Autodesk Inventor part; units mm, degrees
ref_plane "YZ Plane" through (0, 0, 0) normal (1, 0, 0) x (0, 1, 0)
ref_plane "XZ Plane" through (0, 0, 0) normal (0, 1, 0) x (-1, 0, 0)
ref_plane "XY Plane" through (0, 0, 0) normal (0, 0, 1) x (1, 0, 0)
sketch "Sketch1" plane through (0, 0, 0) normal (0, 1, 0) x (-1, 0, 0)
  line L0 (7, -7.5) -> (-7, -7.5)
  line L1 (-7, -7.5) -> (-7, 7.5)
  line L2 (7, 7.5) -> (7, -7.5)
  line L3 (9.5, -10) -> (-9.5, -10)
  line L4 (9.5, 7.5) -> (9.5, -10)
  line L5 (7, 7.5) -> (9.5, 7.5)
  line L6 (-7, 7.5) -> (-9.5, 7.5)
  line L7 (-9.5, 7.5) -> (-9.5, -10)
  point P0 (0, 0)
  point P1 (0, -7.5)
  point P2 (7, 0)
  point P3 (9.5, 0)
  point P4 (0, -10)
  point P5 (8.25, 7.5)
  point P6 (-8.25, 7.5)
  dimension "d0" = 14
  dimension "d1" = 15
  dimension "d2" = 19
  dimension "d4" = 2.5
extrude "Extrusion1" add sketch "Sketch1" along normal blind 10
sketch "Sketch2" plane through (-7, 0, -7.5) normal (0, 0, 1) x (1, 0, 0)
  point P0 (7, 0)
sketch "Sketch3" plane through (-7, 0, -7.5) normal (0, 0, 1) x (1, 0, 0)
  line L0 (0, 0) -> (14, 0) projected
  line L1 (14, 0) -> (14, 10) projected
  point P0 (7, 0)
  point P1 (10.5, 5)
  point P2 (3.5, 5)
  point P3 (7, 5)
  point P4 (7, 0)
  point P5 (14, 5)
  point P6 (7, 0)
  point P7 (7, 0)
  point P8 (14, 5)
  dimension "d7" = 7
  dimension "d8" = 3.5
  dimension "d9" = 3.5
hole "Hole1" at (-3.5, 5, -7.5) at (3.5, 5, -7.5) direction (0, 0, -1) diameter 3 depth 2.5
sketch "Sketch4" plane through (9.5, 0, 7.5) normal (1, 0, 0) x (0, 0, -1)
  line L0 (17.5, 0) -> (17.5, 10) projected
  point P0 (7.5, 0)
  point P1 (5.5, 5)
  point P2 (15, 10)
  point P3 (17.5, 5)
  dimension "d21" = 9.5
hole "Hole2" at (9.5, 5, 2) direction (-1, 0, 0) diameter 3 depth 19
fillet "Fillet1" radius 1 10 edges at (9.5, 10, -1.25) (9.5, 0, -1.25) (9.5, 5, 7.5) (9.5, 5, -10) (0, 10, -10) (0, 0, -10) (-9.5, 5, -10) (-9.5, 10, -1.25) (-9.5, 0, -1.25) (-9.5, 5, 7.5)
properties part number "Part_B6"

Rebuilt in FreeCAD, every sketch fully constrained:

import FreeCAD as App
import Part
import Sketcher
from FreeCAD import Vector
Q = App.Units.Quantity


def edges_at(feature, points):
    """Names of the edges that pass closest to the given points."""
    edges = feature.Shape.Edges
    near = lambda p: min(range(len(edges)), key=lambda i: edges[i].distToShape(Part.Vertex(*p))[0])
    return sorted({f"Edge{near(p) + 1}" for p in points})

doc = App.newDocument("Part")
params = doc.addObject("Spreadsheet::Sheet", "Params")
for row, (alias, value) in enumerate([
    ("sketch1_width", "14 mm"),
    ("sketch1_width2", "19 mm"),
    ("sketch1_height", "15 mm"),
    ("pad1_length", "10 mm"),
    ("sketch2_diameter", "3 mm"),
    ("hole_diameter", "3 mm"),
    ("hole_depth", "2.5 mm"),
    ("sketch3_diameter", "3 mm"),
    ("hole2_diameter", "3 mm"),
    ("hole2_depth", "19 mm"),
    ("fillet_radius", "1 mm"),
], start=1):
    params.set(f"A{row}", alias)
    params.set(f"B{row}", "=" + value)
    params.setAlias(f"B{row}", alias)

body = doc.addObject("PartDesign::Body", "Body")

# Sketch on XZ plane
sketch1 = doc.addObject("Sketcher::SketchObject", "Sketch")
body.addObject(sketch1)
sketch1.AttachmentSupport = (doc.XZ_Plane, [""])
sketch1.MapMode = "FlatFace"
sketch1.addGeometry([
    Part.LineSegment(Vector(-7, 7.5, 0), Vector(-7, -7.5, 0)),  # 0
    Part.LineSegment(Vector(-7, -7.5, 0), Vector(7, -7.5, 0)),  # 1
    Part.LineSegment(Vector(7, -7.5, 0), Vector(7, 7.5, 0)),  # 2
    Part.LineSegment(Vector(7, 7.5, 0), Vector(9.5, 7.5, 0)),  # 3
    Part.LineSegment(Vector(9.5, 7.5, 0), Vector(9.5, -10, 0)),  # 4
    Part.LineSegment(Vector(9.5, -10, 0), Vector(-9.5, -10, 0)),  # 5
    Part.LineSegment(Vector(-9.5, -10, 0), Vector(-9.5, 7.5, 0)),  # 6
    Part.LineSegment(Vector(-9.5, 7.5, 0), Vector(-7, 7.5, 0)),  # 7
], False)
sketch1.addConstraint([
    Sketcher.Constraint("Coincident", 0, 2, 1, 1),
    Sketcher.Constraint("Coincident", 1, 2, 2, 1),
    Sketcher.Constraint("Coincident", 2, 2, 3, 1),
    Sketcher.Constraint("Coincident", 3, 2, 4, 1),
    Sketcher.Constraint("Coincident", 4, 2, 5, 1),
    Sketcher.Constraint("Coincident", 5, 2, 6, 1),
    Sketcher.Constraint("Coincident", 6, 2, 7, 1),
    Sketcher.Constraint("Coincident", 7, 2, 0, 1),
    Sketcher.Constraint("Vertical", 0),
    Sketcher.Constraint("Horizontal", 1),
    Sketcher.Constraint("Vertical", 2),
    Sketcher.Constraint("Horizontal", 3),
    Sketcher.Constraint("Vertical", 4),
    Sketcher.Constraint("Horizontal", 5),
    Sketcher.Constraint("Vertical", 6),
    Sketcher.Constraint("Horizontal", 7),
    Sketcher.Constraint("Symmetric", 0, 2, 2, 2, -1, 1),
    Sketcher.Constraint("Symmetric", 3, 2, 6, 2, -2),
    Sketcher.Constraint("DistanceX", 1, 1, 1, 2, Q("14 mm")),
    Sketcher.Constraint("DistanceX", 5, 2, 5, 1, Q("19 mm")),
    Sketcher.Constraint("DistanceY", 0, 2, 0, 1, Q("15 mm")),
    Sketcher.Constraint("DistanceY", 4, 2, 1, 2, Q("2.5 mm")),
])
sketch1.setExpression("Constraints[18]", "Params.sketch1_width")
sketch1.setExpression("Constraints[19]", "Params.sketch1_width2")
sketch1.setExpression("Constraints[20]", "Params.sketch1_height")
pad1 = doc.addObject("PartDesign::Pad", "Pad")
body.addObject(pad1)
pad1.Profile = sketch1
pad1.setExpression("Length", "Params.pad1_length")
pad1.Reversed = True

# Sketch on XY plane
sketch2 = doc.addObject("Sketcher::SketchObject", "Sketch001")
body.addObject(sketch2)
sketch2.AttachmentSupport = (doc.XY_Plane, [""])
sketch2.MapMode = "FlatFace"
sketch2.AttachmentOffset = App.Placement(Vector(0, 0, -7.5), App.Rotation())
sketch2.addGeometry([
    Part.Circle(Vector(-3.5, 5, 0), Vector(0, 0, 1), 1.5),
    Part.Circle(Vector(3.5, 5, 0), Vector(0, 0, 1), 1.5),
], False)
sketch2.addConstraint([
    Sketcher.Constraint("Equal", 0, 1),
    Sketcher.Constraint("Symmetric", 0, 3, 1, 3, -2),
    Sketcher.Constraint("Diameter", 0, Q("3 mm")),
    Sketcher.Constraint("DistanceY", -1, 1, 0, 3, Q("5 mm")),
    Sketcher.Constraint("DistanceX", 0, 3, 1, 3, Q("7 mm")),
])
sketch2.setExpression("Constraints[2]", "Params.sketch2_diameter")
doc.recompute()
hole = doc.addObject("PartDesign::Hole", "Hole")
body.addObject(hole)
hole.Profile = sketch2
hole.ThreadType = "None"
hole.setExpression("Diameter", "Params.hole_diameter")
hole.DepthType = "Dimension"
hole.setExpression("Depth", "Params.hole_depth")
hole.DrillPoint = "Flat"

# Sketch on YZ plane
sketch3 = doc.addObject("Sketcher::SketchObject", "Sketch002")
body.addObject(sketch3)
sketch3.AttachmentSupport = (doc.YZ_Plane, [""])
sketch3.MapMode = "FlatFace"
sketch3.AttachmentOffset = App.Placement(Vector(0, 0, 9.5), App.Rotation())
sketch3.addGeometry(Part.Circle(Vector(5, 2, 0), Vector(0, 0, 1), 1.5), False)
sketch3.addConstraint([
    Sketcher.Constraint("Diameter", 0, Q("3 mm")),
    Sketcher.Constraint("DistanceX", -1, 1, 0, 3, Q("5 mm")),
    Sketcher.Constraint("DistanceY", -1, 1, 0, 3, Q("2 mm")),
])
sketch3.setExpression("Constraints[0]", "Params.sketch3_diameter")
doc.recompute()
hole2 = doc.addObject("PartDesign::Hole", "Hole001")
body.addObject(hole2)
hole2.Profile = sketch3
hole2.ThreadType = "None"
hole2.setExpression("Diameter", "Params.hole2_diameter")
hole2.DepthType = "Dimension"
hole2.setExpression("Depth", "Params.hole2_depth")
hole2.DrillPoint = "Flat"
doc.recompute()

fillet = doc.addObject("PartDesign::Fillet", "Fillet")
body.addObject(fillet)
fillet.Base = (hole2, edges_at(hole2, [
    (9.5, 10, -1.25),
    (9.5, 0, -1.25),
    (9.5, 5, 7.5),
    (9.5, 5, -10),
    (0, 10, -10),
    (0, 0, -10),
    (-9.5, 5, -10),
    (-9.5, 10, -1.25),
    (-9.5, 0, -1.25),
    (-9.5, 5, 7.5),
]))
fillet.setExpression("Radius", "Params.fillet_radius")

doc.recompute()
